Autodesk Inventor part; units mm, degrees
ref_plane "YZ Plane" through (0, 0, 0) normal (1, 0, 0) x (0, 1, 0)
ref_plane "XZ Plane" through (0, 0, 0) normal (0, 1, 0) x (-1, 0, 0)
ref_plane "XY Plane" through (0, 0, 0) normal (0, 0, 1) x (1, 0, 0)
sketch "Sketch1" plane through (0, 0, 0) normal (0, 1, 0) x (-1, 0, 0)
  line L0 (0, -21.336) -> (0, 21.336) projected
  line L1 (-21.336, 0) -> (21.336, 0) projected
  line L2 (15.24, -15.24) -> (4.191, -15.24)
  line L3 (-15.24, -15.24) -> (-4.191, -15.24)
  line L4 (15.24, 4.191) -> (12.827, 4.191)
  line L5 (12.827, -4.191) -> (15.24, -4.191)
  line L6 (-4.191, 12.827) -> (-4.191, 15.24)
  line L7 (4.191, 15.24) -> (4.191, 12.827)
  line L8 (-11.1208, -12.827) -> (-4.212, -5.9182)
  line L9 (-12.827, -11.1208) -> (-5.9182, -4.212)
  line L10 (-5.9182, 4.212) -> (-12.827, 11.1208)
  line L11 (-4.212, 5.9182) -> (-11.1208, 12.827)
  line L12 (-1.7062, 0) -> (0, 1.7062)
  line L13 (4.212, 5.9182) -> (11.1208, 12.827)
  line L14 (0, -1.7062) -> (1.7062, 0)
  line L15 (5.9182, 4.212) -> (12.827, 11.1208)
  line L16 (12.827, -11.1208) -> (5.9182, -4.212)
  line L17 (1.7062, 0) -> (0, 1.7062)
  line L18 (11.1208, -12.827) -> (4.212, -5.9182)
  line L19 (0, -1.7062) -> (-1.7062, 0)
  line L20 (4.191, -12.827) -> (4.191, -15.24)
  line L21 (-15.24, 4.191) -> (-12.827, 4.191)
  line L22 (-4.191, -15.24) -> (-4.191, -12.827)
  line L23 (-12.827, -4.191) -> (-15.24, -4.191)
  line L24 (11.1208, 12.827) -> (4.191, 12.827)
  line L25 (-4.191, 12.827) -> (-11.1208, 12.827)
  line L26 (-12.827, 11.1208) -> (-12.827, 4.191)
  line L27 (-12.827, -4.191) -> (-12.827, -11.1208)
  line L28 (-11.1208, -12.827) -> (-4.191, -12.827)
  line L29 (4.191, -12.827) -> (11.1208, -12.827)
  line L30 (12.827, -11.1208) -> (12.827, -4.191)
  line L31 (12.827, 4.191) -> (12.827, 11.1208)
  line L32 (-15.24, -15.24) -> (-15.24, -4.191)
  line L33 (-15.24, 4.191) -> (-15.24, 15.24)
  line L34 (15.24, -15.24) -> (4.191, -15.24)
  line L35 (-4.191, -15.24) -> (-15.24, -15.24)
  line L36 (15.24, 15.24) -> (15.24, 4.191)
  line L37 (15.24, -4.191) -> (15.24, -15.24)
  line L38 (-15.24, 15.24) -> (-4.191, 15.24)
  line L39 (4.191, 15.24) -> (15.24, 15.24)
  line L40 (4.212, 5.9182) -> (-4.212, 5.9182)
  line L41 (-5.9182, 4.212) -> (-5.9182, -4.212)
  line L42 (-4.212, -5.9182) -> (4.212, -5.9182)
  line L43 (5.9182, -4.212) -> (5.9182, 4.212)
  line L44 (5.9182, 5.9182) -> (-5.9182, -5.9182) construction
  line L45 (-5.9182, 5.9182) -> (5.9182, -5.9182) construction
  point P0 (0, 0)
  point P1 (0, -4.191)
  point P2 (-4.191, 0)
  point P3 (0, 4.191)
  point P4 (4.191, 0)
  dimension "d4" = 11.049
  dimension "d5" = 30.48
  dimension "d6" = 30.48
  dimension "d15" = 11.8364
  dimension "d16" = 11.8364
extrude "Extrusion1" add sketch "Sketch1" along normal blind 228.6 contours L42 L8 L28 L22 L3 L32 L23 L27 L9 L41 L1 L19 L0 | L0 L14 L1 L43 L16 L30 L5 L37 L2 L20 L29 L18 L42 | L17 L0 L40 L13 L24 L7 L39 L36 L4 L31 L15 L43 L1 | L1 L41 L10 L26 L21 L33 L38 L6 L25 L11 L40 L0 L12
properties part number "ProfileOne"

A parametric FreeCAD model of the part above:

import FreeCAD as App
import Part
import Sketcher
Q = App.Units.Quantity

doc = App.newDocument("Part")
body = doc.addObject("PartDesign::Body", "Body")

# Sketch on XZ plane
sketch1 = body.newObject("Sketcher::SketchObject", "Sketch")
sketch1.AttachmentSupport = (doc.getObject("XZ_Plane"), [""])
sketch1.MapMode = "FlatFace"
sketch1.addGeometry(Part.LineSegment(App.Vector(4.212, -5.9182, 0), App.Vector(-4.212, -5.9182, 0)), False)
sketch1.addGeometry(Part.LineSegment(App.Vector(-4.212, -5.9182, 0), App.Vector(-11.1208, -12.827, 0)), False)
sketch1.addGeometry(Part.LineSegment(App.Vector(-11.1208, -12.827, 0), App.Vector(-4.191, -12.827, 0)), False)
sketch1.addGeometry(Part.LineSegment(App.Vector(-4.191, -12.827, 0), App.Vector(-4.191, -15.24, 0)), False)
sketch1.addGeometry(Part.LineSegment(App.Vector(-4.191, -15.24, 0), App.Vector(-15.24, -15.24, 0)), False)
sketch1.addGeometry(Part.LineSegment(App.Vector(-15.24, -15.24, 0), App.Vector(-15.24, -4.191, 0)), False)
sketch1.addGeometry(Part.LineSegment(App.Vector(-15.24, -4.191, 0), App.Vector(-12.827, -4.191, 0)), False)
sketch1.addGeometry(Part.LineSegment(App.Vector(-12.827, -4.191, 0), App.Vector(-12.827, -11.1208, 0)), False)
sketch1.addGeometry(Part.LineSegment(App.Vector(-12.827, -11.1208, 0), App.Vector(-5.9182, -4.212, 0)), False)
sketch1.addGeometry(Part.LineSegment(App.Vector(-5.9182, -4.212, 0), App.Vector(-5.9182, 4.212, 0)), False)
sketch1.addGeometry(Part.LineSegment(App.Vector(-5.9182, 4.212, 0), App.Vector(-12.827, 11.1208, 0)), False)
sketch1.addGeometry(Part.LineSegment(App.Vector(-12.827, 11.1208, 0), App.Vector(-12.827, 4.191, 0)), False)
sketch1.addGeometry(Part.LineSegment(App.Vector(-12.827, 4.191, 0), App.Vector(-15.24, 4.191, 0)), False)
sketch1.addGeometry(Part.LineSegment(App.Vector(-15.24, 4.191, 0), App.Vector(-15.24, 15.24, 0)), False)
sketch1.addGeometry(Part.LineSegment(App.Vector(-15.24, 15.24, 0), App.Vector(-4.191, 15.24, 0)), False)
sketch1.addGeometry(Part.LineSegment(App.Vector(-4.191, 15.24, 0), App.Vector(-4.191, 12.827, 0)), False)
sketch1.addGeometry(Part.LineSegment(App.Vector(-4.191, 12.827, 0), App.Vector(-11.1208, 12.827, 0)), False)
sketch1.addGeometry(Part.LineSegment(App.Vector(-11.1208, 12.827, 0), App.Vector(-4.212, 5.9182, 0)), False)
sketch1.addGeometry(Part.LineSegment(App.Vector(-4.212, 5.9182, 0), App.Vector(4.212, 5.9182, 0)), False)
sketch1.addGeometry(Part.LineSegment(App.Vector(4.212, 5.9182, 0), App.Vector(11.1208, 12.827, 0)), False)
sketch1.addGeometry(Part.LineSegment(App.Vector(11.1208, 12.827, 0), App.Vector(4.191, 12.827, 0)), False)
sketch1.addGeometry(Part.LineSegment(App.Vector(4.191, 12.827, 0), App.Vector(4.191, 15.24, 0)), False)
sketch1.addGeometry(Part.LineSegment(App.Vector(4.191, 15.24, 0), App.Vector(15.24, 15.24, 0)), False)
sketch1.addGeometry(Part.LineSegment(App.Vector(15.24, 15.24, 0), App.Vector(15.24, 4.191, 0)), False)
sketch1.addGeometry(Part.LineSegment(App.Vector(15.24, 4.191, 0), App.Vector(12.827, 4.191, 0)), False)
sketch1.addGeometry(Part.LineSegment(App.Vector(12.827, 4.191, 0), App.Vector(12.827, 11.1208, 0)), False)
sketch1.addGeometry(Part.LineSegment(App.Vector(12.827, 11.1208, 0), App.Vector(5.9182, 4.212, 0)), False)
sketch1.addGeometry(Part.LineSegment(App.Vector(5.9182, 4.212, 0), App.Vector(5.9182, -4.212, 0)), False)
sketch1.addGeometry(Part.LineSegment(App.Vector(5.9182, -4.212, 0), App.Vector(12.827, -11.1208, 0)), False)
sketch1.addGeometry(Part.LineSegment(App.Vector(12.827, -11.1208, 0), App.Vector(12.827, -4.191, 0)), False)
sketch1.addGeometry(Part.LineSegment(App.Vector(12.827, -4.191, 0), App.Vector(15.24, -4.191, 0)), False)
sketch1.addGeometry(Part.LineSegment(App.Vector(15.24, -4.191, 0), App.Vector(15.24, -15.24, 0)), False)
sketch1.addGeometry(Part.LineSegment(App.Vector(15.24, -15.24, 0), App.Vector(4.191, -15.24, 0)), False)
sketch1.addGeometry(Part.LineSegment(App.Vector(4.191, -15.24, 0), App.Vector(4.191, -12.827, 0)), False)
sketch1.addGeometry(Part.LineSegment(App.Vector(4.191, -12.827, 0), App.Vector(11.1208, -12.827, 0)), False)
sketch1.addGeometry(Part.LineSegment(App.Vector(11.1208, -12.827, 0), App.Vector(4.212, -5.9182, 0)), False)
sketch1.addGeometry(Part.LineSegment(App.Vector(0, -1.7062, 0), App.Vector(1.7062, 0, 0)), False)
sketch1.addGeometry(Part.LineSegment(App.Vector(1.7062, 0, 0), App.Vector(0, 1.7062, 0)), False)
sketch1.addGeometry(Part.LineSegment(App.Vector(0, 1.7062, 0), App.Vector(-1.7062, 0, 0)), False)
sketch1.addGeometry(Part.LineSegment(App.Vector(-1.7062, 0, 0), App.Vector(0, -1.7062, 0)), False)
sketch1.addConstraint(Sketcher.Constraint("Coincident", 0, 2, 1, 1))
sketch1.addConstraint(Sketcher.Constraint("Coincident", 1, 2, 2, 1))
sketch1.addConstraint(Sketcher.Constraint("Coincident", 2, 2, 3, 1))
sketch1.addConstraint(Sketcher.Constraint("Coincident", 3, 2, 4, 1))
sketch1.addConstraint(Sketcher.Constraint("Coincident", 4, 2, 5, 1))
sketch1.addConstraint(Sketcher.Constraint("Coincident", 5, 2, 6, 1))
sketch1.addConstraint(Sketcher.Constraint("Coincident", 6, 2, 7, 1))
sketch1.addConstraint(Sketcher.Constraint("Coincident", 7, 2, 8, 1))
sketch1.addConstraint(Sketcher.Constraint("Coincident", 8, 2, 9, 1))
sketch1.addConstraint(Sketcher.Constraint("Coincident", 9, 2, 10, 1))
sketch1.addConstraint(Sketcher.Constraint("Coincident", 10, 2, 11, 1))
sketch1.addConstraint(Sketcher.Constraint("Coincident", 11, 2, 12, 1))
sketch1.addConstraint(Sketcher.Constraint("Coincident", 12, 2, 13, 1))
sketch1.addConstraint(Sketcher.Constraint("Coincident", 13, 2, 14, 1))
sketch1.addConstraint(Sketcher.Constraint("Coincident", 14, 2, 15, 1))
sketch1.addConstraint(Sketcher.Constraint("Coincident", 15, 2, 16, 1))
sketch1.addConstraint(Sketcher.Constraint("Coincident", 16, 2, 17, 1))
sketch1.addConstraint(Sketcher.Constraint("Coincident", 17, 2, 18, 1))
sketch1.addConstraint(Sketcher.Constraint("Coincident", 18, 2, 19, 1))
sketch1.addConstraint(Sketcher.Constraint("Coincident", 19, 2, 20, 1))
sketch1.addConstraint(Sketcher.Constraint("Coincident", 20, 2, 21, 1))
sketch1.addConstraint(Sketcher.Constraint("Coincident", 21, 2, 22, 1))
sketch1.addConstraint(Sketcher.Constraint("Coincident", 22, 2, 23, 1))
sketch1.addConstraint(Sketcher.Constraint("Coincident", 23, 2, 24, 1))
sketch1.addConstraint(Sketcher.Constraint("Coincident", 24, 2, 25, 1))
sketch1.addConstraint(Sketcher.Constraint("Coincident", 25, 2, 26, 1))
sketch1.addConstraint(Sketcher.Constraint("Coincident", 26, 2, 27, 1))
sketch1.addConstraint(Sketcher.Constraint("Coincident", 27, 2, 28, 1))
sketch1.addConstraint(Sketcher.Constraint("Coincident", 28, 2, 29, 1))
sketch1.addConstraint(Sketcher.Constraint("Coincident", 29, 2, 30, 1))
sketch1.addConstraint(Sketcher.Constraint("Coincident", 30, 2, 31, 1))
sketch1.addConstraint(Sketcher.Constraint("Coincident", 31, 2, 32, 1))
sketch1.addConstraint(Sketcher.Constraint("Coincident", 32, 2, 33, 1))
sketch1.addConstraint(Sketcher.Constraint("Coincident", 33, 2, 34, 1))
sketch1.addConstraint(Sketcher.Constraint("Coincident", 34, 2, 35, 1))
sketch1.addConstraint(Sketcher.Constraint("Coincident", 35, 2, 0, 1))
sketch1.addConstraint(Sketcher.Constraint("Coincident", 36, 2, 37, 1))
sketch1.addConstraint(Sketcher.Constraint("Coincident", 37, 2, 38, 1))
sketch1.addConstraint(Sketcher.Constraint("Coincident", 38, 2, 39, 1))
sketch1.addConstraint(Sketcher.Constraint("Coincident", 39, 2, 36, 1))
sketch1.addConstraint(Sketcher.Constraint("Horizontal", 0))
sketch1.addConstraint(Sketcher.Constraint("Horizontal", 2))
sketch1.addConstraint(Sketcher.Constraint("Vertical", 3))
sketch1.addConstraint(Sketcher.Constraint("Horizontal", 4))
sketch1.addConstraint(Sketcher.Constraint("Vertical", 5))
sketch1.addConstraint(Sketcher.Constraint("Horizontal", 6))
sketch1.addConstraint(Sketcher.Constraint("Vertical", 7))
sketch1.addConstraint(Sketcher.Constraint("Vertical", 9))
sketch1.addConstraint(Sketcher.Constraint("Vertical", 11))
sketch1.addConstraint(Sketcher.Constraint("Horizontal", 12))
sketch1.addConstraint(Sketcher.Constraint("Vertical", 13))
sketch1.addConstraint(Sketcher.Constraint("Horizontal", 14))
sketch1.addConstraint(Sketcher.Constraint("Vertical", 15))
sketch1.addConstraint(Sketcher.Constraint("Horizontal", 16))
sketch1.addConstraint(Sketcher.Constraint("Horizontal", 18))
sketch1.addConstraint(Sketcher.Constraint("Horizontal", 20))
sketch1.addConstraint(Sketcher.Constraint("Vertical", 21))
sketch1.addConstraint(Sketcher.Constraint("Horizontal", 22))
sketch1.addConstraint(Sketcher.Constraint("Vertical", 23))
sketch1.addConstraint(Sketcher.Constraint("Horizontal", 24))
sketch1.addConstraint(Sketcher.Constraint("Vertical", 25))
sketch1.addConstraint(Sketcher.Constraint("Vertical", 27))
sketch1.addConstraint(Sketcher.Constraint("Vertical", 29))
sketch1.addConstraint(Sketcher.Constraint("Horizontal", 30))
sketch1.addConstraint(Sketcher.Constraint("Vertical", 31))
sketch1.addConstraint(Sketcher.Constraint("Horizontal", 32))
sketch1.addConstraint(Sketcher.Constraint("Vertical", 33))
sketch1.addConstraint(Sketcher.Constraint("Horizontal", 34))
sketch1.addConstraint(Sketcher.Constraint("Symmetric", 0, 2, 18, 2, -1, 1))
sketch1.addConstraint(Sketcher.Constraint("Symmetric", 1, 2, 19, 2, -1, 1))
sketch1.addConstraint(Sketcher.Constraint("Symmetric", 3, 2, 21, 2, -1, 1))
sketch1.addConstraint(Sketcher.Constraint("Symmetric", 5, 2, 23, 2, -1, 1))
sketch1.addConstraint(Sketcher.Constraint("Symmetric", 7, 2, 25, 2, -1, 1))
sketch1.addConstraint(Sketcher.Constraint("Symmetric", 8, 2, 26, 2, -1, 1))
sketch1.addConstraint(Sketcher.Constraint("Symmetric", 10, 2, 28, 2, -1, 1))
sketch1.addConstraint(Sketcher.Constraint("Symmetric", 12, 2, 30, 2, -1, 1))
sketch1.addConstraint(Sketcher.Constraint("Symmetric", 14, 2, 32, 2, -1, 1))
sketch1.addConstraint(Sketcher.Constraint("Symmetric", 16, 2, 34, 2, -1, 1))
sketch1.addConstraint(Sketcher.Constraint("Symmetric", 36, 2, 38, 2, -1, 1))
sketch1.addConstraint(Sketcher.Constraint("Symmetric", 37, 2, 39, 2, -1, 1))
sketch1.addConstraint(Sketcher.Constraint("Symmetric", 16, 2, 19, 2, -2))
sketch1.addConstraint(Sketcher.Constraint("Symmetric", 14, 2, 21, 2, -2))
sketch1.addConstraint(Sketcher.Constraint("Symmetric", 12, 2, 23, 2, -2))
sketch1.addConstraint(Sketcher.Constraint("Symmetric", 10, 2, 25, 2, -2))
sketch1.addConstraint(Sketcher.Constraint("PointOnObject", 36, 2, -1))
sketch1.addConstraint(Sketcher.Constraint("PointOnObject", 37, 2, -2))
sketch1.addConstraint(Sketcher.Constraint("Parallel", 1, 8))
sketch1.addConstraint(Sketcher.Constraint("Perpendicular", 8, 10))
sketch1.addConstraint(Sketcher.Constraint("Parallel", 10, 17))
sketch1.addConstraint(Sketcher.Constraint("Perpendicular", 26, 28))
sketch1.addConstraint(Sketcher.Constraint("Parallel", 28, 35))
sketch1.addConstraint(Sketcher.Constraint("Perpendicular", 35, 36))
sketch1.addConstraint(Sketcher.Constraint("Perpendicular", 36, 37))
sketch1.addConstraint(Sketcher.Constraint("Equal", 30, 3))
sketch1.addConstraint(Sketcher.Constraint("Equal", 32, 5))
sketch1.addConstraint(Sketcher.Constraint("Equal", 34, 7))
sketch1.addConstraint(Sketcher.Constraint("Equal", 18, 9))
sketch1.addConstraint(Sketcher.Constraint("Equal", 1, 8))
sketch1.addConstraint(Sketcher.Constraint("DistanceX", 4, 2, 4, 1, Q("0.435 in")))
sketch1.addConstraint(Sketcher.Constraint("DistanceX", 8, 2, 27, 2, Q("0.466 in")))
sketch1.addConstraint(Sketcher.Constraint("DistanceY", 3, 2, -1, 1, Q("0.6 in")))
sketch1.addConstraint(Sketcher.Constraint("DistanceX", 6, 1, 6, 2, Q("0.095 in")))
sketch1.addConstraint(Sketcher.Constraint("Distance", 36, Q("0.095 in")))
sketch1.addConstraint(Sketcher.Constraint("DistanceX", 0, 2, 36, 2, Q("0.233 in")))
pad1 = body.newObject("PartDesign::Pad", "Pad")
pad1.Profile = sketch1
pad1.Length = Q("9 in")
pad1.Reversed = True

doc.recompute()
